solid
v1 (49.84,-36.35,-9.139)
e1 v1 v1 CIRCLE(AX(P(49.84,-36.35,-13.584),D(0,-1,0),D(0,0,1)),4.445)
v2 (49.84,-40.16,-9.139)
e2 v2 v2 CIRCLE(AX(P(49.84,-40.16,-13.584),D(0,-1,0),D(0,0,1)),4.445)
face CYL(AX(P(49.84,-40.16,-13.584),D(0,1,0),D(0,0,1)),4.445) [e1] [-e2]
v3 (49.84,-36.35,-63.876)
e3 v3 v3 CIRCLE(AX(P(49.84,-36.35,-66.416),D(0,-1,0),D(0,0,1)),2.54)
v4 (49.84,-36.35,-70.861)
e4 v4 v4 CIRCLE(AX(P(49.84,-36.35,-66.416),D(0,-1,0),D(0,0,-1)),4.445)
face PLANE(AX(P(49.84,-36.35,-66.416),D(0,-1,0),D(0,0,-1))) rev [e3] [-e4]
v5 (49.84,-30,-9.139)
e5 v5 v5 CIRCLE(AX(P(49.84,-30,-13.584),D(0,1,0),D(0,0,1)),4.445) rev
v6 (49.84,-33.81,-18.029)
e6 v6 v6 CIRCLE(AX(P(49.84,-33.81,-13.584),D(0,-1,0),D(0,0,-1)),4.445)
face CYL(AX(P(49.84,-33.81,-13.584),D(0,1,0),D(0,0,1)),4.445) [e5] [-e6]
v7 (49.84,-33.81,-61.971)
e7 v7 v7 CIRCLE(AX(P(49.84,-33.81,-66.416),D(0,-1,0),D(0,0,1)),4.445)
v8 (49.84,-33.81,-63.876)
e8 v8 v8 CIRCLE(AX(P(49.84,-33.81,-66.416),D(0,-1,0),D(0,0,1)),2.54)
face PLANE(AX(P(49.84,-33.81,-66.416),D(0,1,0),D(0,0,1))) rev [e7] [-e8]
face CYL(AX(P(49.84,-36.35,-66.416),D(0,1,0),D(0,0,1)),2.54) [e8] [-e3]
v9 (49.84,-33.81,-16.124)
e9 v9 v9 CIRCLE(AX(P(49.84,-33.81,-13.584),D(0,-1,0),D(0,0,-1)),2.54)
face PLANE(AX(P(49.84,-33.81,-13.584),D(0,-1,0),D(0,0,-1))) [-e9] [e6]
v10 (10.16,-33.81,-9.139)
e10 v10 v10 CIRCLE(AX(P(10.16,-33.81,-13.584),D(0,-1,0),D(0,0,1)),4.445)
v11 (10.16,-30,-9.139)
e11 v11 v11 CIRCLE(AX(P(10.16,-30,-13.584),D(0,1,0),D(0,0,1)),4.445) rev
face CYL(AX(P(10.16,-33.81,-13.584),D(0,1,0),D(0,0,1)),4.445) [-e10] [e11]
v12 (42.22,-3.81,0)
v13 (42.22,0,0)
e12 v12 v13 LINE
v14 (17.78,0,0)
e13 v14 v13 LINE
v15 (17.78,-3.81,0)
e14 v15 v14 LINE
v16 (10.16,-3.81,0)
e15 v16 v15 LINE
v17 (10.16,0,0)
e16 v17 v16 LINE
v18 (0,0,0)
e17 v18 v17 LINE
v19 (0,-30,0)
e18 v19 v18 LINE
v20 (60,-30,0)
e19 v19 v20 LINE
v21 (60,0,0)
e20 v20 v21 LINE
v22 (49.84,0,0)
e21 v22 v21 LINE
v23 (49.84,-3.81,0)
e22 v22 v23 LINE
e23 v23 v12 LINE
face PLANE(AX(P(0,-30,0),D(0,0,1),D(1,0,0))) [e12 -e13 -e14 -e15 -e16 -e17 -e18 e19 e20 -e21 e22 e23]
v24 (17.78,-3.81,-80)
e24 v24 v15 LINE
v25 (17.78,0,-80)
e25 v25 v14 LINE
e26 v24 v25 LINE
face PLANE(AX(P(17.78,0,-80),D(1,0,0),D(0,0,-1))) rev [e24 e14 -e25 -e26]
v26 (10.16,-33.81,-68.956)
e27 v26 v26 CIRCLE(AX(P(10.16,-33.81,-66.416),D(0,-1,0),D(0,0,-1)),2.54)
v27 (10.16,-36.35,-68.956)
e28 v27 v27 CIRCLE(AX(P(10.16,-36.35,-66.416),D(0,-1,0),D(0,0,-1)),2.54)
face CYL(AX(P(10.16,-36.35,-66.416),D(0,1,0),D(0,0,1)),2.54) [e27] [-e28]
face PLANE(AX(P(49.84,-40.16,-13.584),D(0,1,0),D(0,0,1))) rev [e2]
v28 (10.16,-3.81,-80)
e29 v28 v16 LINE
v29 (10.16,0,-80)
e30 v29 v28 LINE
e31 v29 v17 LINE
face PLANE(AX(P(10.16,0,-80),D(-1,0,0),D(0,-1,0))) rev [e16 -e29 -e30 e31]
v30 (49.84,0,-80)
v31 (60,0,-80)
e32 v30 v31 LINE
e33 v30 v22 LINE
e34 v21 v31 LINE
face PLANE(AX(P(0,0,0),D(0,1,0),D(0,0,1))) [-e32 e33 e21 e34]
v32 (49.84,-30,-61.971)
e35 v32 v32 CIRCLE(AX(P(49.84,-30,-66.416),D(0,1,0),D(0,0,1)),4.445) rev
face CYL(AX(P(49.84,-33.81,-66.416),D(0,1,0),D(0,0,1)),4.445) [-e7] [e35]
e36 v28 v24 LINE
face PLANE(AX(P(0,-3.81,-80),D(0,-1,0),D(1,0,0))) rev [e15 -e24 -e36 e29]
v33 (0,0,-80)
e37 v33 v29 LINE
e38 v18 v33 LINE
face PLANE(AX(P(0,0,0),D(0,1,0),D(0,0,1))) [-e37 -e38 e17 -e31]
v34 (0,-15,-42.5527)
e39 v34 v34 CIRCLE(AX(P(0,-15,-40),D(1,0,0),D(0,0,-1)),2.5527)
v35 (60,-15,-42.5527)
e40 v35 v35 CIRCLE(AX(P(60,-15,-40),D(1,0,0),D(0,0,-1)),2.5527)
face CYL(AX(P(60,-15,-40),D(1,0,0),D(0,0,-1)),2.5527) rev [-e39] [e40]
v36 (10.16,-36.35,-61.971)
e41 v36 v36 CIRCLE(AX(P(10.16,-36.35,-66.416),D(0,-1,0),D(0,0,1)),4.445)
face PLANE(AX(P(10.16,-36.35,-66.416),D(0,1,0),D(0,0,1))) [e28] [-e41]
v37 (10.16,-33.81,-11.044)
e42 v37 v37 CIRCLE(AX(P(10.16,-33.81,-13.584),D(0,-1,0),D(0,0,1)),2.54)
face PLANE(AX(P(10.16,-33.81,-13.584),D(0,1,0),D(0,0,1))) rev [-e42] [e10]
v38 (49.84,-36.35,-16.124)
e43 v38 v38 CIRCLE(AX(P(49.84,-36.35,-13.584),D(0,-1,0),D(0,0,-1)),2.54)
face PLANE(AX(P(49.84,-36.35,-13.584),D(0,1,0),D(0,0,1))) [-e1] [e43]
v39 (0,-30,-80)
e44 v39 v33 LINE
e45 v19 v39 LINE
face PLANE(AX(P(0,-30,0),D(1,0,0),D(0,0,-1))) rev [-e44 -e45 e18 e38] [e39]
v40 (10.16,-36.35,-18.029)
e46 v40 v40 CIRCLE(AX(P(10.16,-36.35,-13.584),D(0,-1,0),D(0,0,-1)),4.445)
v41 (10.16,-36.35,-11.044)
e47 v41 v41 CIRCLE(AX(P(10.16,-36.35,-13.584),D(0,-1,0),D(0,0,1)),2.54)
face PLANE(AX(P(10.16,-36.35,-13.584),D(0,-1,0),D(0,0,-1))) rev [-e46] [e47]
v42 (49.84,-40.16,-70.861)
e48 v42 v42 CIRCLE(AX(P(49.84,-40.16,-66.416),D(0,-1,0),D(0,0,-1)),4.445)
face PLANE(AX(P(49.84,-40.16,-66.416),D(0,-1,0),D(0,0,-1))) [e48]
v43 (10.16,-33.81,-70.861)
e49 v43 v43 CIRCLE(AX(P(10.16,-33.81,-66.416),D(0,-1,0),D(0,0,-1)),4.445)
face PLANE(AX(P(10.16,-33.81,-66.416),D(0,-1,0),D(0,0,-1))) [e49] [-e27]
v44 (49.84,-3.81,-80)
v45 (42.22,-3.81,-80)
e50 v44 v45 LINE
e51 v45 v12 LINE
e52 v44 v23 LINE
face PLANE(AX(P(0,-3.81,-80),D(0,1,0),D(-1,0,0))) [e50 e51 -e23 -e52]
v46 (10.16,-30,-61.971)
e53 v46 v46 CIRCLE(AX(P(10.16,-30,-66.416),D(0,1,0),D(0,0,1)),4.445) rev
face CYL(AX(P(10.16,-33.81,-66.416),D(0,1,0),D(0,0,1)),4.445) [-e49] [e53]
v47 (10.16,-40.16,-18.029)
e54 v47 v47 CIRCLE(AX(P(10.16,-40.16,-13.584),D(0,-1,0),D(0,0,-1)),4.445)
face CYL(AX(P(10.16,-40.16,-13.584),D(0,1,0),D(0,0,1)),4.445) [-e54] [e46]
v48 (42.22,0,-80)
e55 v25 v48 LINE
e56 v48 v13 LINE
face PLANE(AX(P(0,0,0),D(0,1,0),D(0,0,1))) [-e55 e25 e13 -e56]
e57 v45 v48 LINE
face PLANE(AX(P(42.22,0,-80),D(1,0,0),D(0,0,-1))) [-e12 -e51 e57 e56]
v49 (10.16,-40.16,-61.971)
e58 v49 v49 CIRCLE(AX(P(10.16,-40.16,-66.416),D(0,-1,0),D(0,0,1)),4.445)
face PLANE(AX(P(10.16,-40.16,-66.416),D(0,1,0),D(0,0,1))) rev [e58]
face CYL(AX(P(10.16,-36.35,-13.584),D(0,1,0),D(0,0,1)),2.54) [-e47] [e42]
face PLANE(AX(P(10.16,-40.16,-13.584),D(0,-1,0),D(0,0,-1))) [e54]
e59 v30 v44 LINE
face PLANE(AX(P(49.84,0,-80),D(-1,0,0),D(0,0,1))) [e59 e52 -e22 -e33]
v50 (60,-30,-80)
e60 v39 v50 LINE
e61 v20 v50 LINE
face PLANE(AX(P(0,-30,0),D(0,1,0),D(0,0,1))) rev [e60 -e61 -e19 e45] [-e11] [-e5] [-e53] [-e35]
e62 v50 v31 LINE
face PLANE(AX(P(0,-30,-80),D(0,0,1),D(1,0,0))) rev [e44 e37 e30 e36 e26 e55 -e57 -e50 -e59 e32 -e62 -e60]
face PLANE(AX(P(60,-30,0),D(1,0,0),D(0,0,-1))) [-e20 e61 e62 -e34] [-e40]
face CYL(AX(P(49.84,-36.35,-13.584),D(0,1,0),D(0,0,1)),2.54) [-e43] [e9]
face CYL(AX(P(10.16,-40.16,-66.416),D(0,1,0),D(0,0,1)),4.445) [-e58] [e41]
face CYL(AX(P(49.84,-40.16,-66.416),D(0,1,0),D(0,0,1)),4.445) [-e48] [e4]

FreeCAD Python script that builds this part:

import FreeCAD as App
import Part
import Sketcher

V = App.Vector
Q = App.Units.Quantity

doc = App.newDocument("Part")
params = doc.addObject("Spreadsheet::Sheet", "Params")
for row, (alias, value) in enumerate([
    ("pad1_length", "30 mm"),
    ("sketch2_width", "0.3 in"),
    ("sketch2_height", "0.15 in"),
    ("sketch3_diameter", "0.35 in"),
    ("pad2_length", "0.15 in"),
    ("sketch4_diameter", "0.2 in"),
    ("pad3_length", "0.1 in"),
    ("sketch5_diameter", "0.35 in"),
    ("pad4_length", "0.15 in"),
    ("sketch6_diameter", "0.201 in"),
    ("hole_diameter", "0.201 in"),
], start=1):
    params.set(f"A{row}", alias)
    params.set(f"B{row}", "=" + value)
    params.setAlias(f"B{row}", alias)

body = doc.addObject("PartDesign::Body", "Body")

sketch1 = body.newObject("Sketcher::SketchObject", "Sketch")
sketch1.AttachmentSupport = (doc.getObject("XZ_Plane"), [""])
sketch1.MapMode = "FlatFace"
sketch1.addGeometry([
    Part.LineSegment(V(0, -80, 0), V(0, 0, 0)),
    Part.LineSegment(V(0, 0, 0), V(60, 0, 0)),
    Part.LineSegment(V(60, 0, 0), V(60, -80, 0)),
    Part.LineSegment(V(60, -80, 0), V(0, -80, 0)),
], False)
sketch1.addConstraint([
    Sketcher.Constraint("Coincident", 0, 2, 1, 1),
    Sketcher.Constraint("Coincident", 1, 2, 2, 1),
    Sketcher.Constraint("Coincident", 2, 2, 3, 1),
    Sketcher.Constraint("Coincident", 3, 2, 0, 1),
    Sketcher.Constraint("Vertical", 0),
    Sketcher.Constraint("Horizontal", 1),
    Sketcher.Constraint("Vertical", 2),
    Sketcher.Constraint("Horizontal", 3),
    Sketcher.Constraint("Coincident", 0, 2, -1, 1),
    Sketcher.Constraint("DistanceX", 1, 1, 1, 2, 60.0),
    Sketcher.Constraint("DistanceY", 0, 1, 0, 2, 80.0),
])
pad1 = body.newObject("PartDesign::Pad", "Pad")
pad1.Profile = sketch1
pad1.setExpression("Length", "Params.pad1_length")

sketch2 = body.newObject("Sketcher::SketchObject", "Sketch001")
sketch2.AttachmentSupport = (doc.getObject("XY_Plane"), [""])
sketch2.MapMode = "FlatFace"
sketch2.addGeometry([
    Part.LineSegment(V(10.16, 0, 0), V(10.16, -3.81, 0)),
    Part.LineSegment(V(10.16, -3.81, 0), V(17.78, -3.81, 0)),
    Part.LineSegment(V(17.78, -3.81, 0), V(17.78, 0, 0)),
    Part.LineSegment(V(17.78, 0, 0), V(10.16, 0, 0)),
    Part.LineSegment(V(49.84, 0, 0), V(42.22, 0, 0)),
    Part.LineSegment(V(42.22, 0, 0), V(42.22, -3.81, 0)),
    Part.LineSegment(V(42.22, -3.81, 0), V(49.84, -3.81, 0)),
    Part.LineSegment(V(49.84, -3.81, 0), V(49.84, 0, 0)),
], False)
sketch2.addConstraint([
    Sketcher.Constraint("Coincident", 0, 2, 1, 1),
    Sketcher.Constraint("Coincident", 1, 2, 2, 1),
    Sketcher.Constraint("Coincident", 2, 2, 3, 1),
    Sketcher.Constraint("Coincident", 3, 2, 0, 1),
    Sketcher.Constraint("Coincident", 4, 2, 5, 1),
    Sketcher.Constraint("Coincident", 5, 2, 6, 1),
    Sketcher.Constraint("Coincident", 6, 2, 7, 1),
    Sketcher.Constraint("Coincident", 7, 2, 4, 1),
    Sketcher.Constraint("Vertical", 0),
    Sketcher.Constraint("Horizontal", 1),
    Sketcher.Constraint("Vertical", 2),
    Sketcher.Constraint("Horizontal", 3),
    Sketcher.Constraint("Horizontal", 4),
    Sketcher.Constraint("Vertical", 5),
    Sketcher.Constraint("Horizontal", 6),
    Sketcher.Constraint("Vertical", 7),
    Sketcher.Constraint("PointOnObject", 2, 2, -1),
    Sketcher.Constraint("PointOnObject", 4, 2, -1),
    Sketcher.Constraint("Horizontal", 1, 2, 5, 2),
    Sketcher.Constraint("Equal", 3, 4),
    Sketcher.Constraint("DistanceX", 1, 1, 1, 2, Q("0.3 in")),
    Sketcher.Constraint("DistanceY", 0, 2, 0, 1, Q("0.15 in")),
    Sketcher.Constraint("DistanceX", -1, 1, 0, 2, Q("0.4 in")),
    Sketcher.Constraint("DistanceX", -1, 1, 4, 2, 42.22),
])
sketch2.setExpression("Constraints[20]", "Params.sketch2_width")
sketch2.setExpression("Constraints[21]", "Params.sketch2_height")
pocket1 = body.newObject("PartDesign::Pocket", "Pocket")
pocket1.Profile = sketch2
pocket1.Type = "ThroughAll"

sketch3 = body.newObject("Sketcher::SketchObject", "Sketch002")
sketch3.AttachmentSupport = (doc.getObject("XZ_Plane"), [""])
sketch3.MapMode = "FlatFace"
sketch3.AttachmentOffset = App.Placement(V(0, 0, 30), App.Rotation())
sketch3.addGeometry([
    Part.Circle(V(49.84, -13.584, 0), V(0, 0, 1), 4.445),
    Part.Circle(V(10.16, -13.584, 0), V(0, 0, 1), 4.445),
    Part.Circle(V(49.84, -66.416, 0), V(0, 0, 1), 4.445),
    Part.Circle(V(10.16, -66.416, 0), V(0, 0, 1), 4.445),
], False)
sketch3.addConstraint([
    Sketcher.Constraint("Equal", 0, 1),
    Sketcher.Constraint("Equal", 1, 2),
    Sketcher.Constraint("Equal", 2, 3),
    Sketcher.Constraint("Horizontal", 0, 3, 1, 3),
    Sketcher.Constraint("Horizontal", 2, 3, 3, 3),
    Sketcher.Constraint("Vertical", 0, 3, 2, 3),
    Sketcher.Constraint("Vertical", 1, 3, 3, 3),
    Sketcher.Constraint("Diameter", 0, Q("0.35 in")),
    Sketcher.Constraint("DistanceX", -1, 1, 1, 3, Q("0.4 in")),
    Sketcher.Constraint("DistanceY", 2, 3, 0, 3, Q("2.08 in")),
    Sketcher.Constraint("DistanceX", -1, 1, 0, 3, 49.84),
    Sketcher.Constraint("DistanceY", 0, 3, -1, 1, 13.584),
])
sketch3.setExpression("Constraints[7]", "Params.sketch3_diameter")
pad2 = body.newObject("PartDesign::Pad", "Pad001")
pad2.Profile = sketch3
pad2.setExpression("Length", "Params.pad2_length")

sketch4 = body.newObject("Sketcher::SketchObject", "Sketch003")
sketch4.AttachmentSupport = (doc.getObject("XZ_Plane"), [""])
sketch4.MapMode = "FlatFace"
sketch4.AttachmentOffset = App.Placement(V(0, 0, 33.81), App.Rotation())
sketch4.addGeometry([
    Part.Circle(V(49.84, -13.584, 0), V(0, 0, 1), 2.54),
    Part.Circle(V(10.16, -13.584, 0), V(0, 0, 1), 2.54),
    Part.Circle(V(10.16, -66.416, 0), V(0, 0, 1), 2.54),
    Part.Circle(V(49.84, -66.416, 0), V(0, 0, 1), 2.54),
], False)
sketch4.addConstraint([
    Sketcher.Constraint("Equal", 0, 1),
    Sketcher.Constraint("Equal", 1, 2),
    Sketcher.Constraint("Equal", 2, 3),
    Sketcher.Constraint("Horizontal", 0, 3, 1, 3),
    Sketcher.Constraint("Horizontal", 2, 3, 3, 3),
    Sketcher.Constraint("Vertical", 1, 3, 2, 3),
    Sketcher.Constraint("Vertical", 0, 3, 3, 3),
    Sketcher.Constraint("Diameter", 0, Q("0.2 in")),
    Sketcher.Constraint("DistanceX", -1, 1, 1, 3, Q("0.4 in")),
    Sketcher.Constraint("DistanceY", 2, 3, 1, 3, Q("2.08 in")),
    Sketcher.Constraint("DistanceX", -1, 1, 0, 3, 49.84),
    Sketcher.Constraint("DistanceY", 0, 3, -1, 1, 13.584),
])
sketch4.setExpression("Constraints[7]", "Params.sketch4_diameter")
pad3 = body.newObject("PartDesign::Pad", "Pad002")
pad3.Profile = sketch4
pad3.setExpression("Length", "Params.pad3_length")

sketch5 = body.newObject("Sketcher::SketchObject", "Sketch004")
sketch5.AttachmentSupport = (doc.getObject("XZ_Plane"), [""])
sketch5.MapMode = "FlatFace"
sketch5.AttachmentOffset = App.Placement(V(0, 0, 36.35), App.Rotation())
sketch5.addGeometry([
    Part.Circle(V(10.16, -13.584, 0), V(0, 0, 1), 4.445),
    Part.Circle(V(10.16, -66.416, 0), V(0, 0, 1), 4.445),
    Part.Circle(V(49.84, -66.416, 0), V(0, 0, 1), 4.445),
    Part.Circle(V(49.84, -13.584, 0), V(0, 0, 1), 4.445),
], False)
sketch5.addConstraint([
    Sketcher.Constraint("Equal", 0, 1),
    Sketcher.Constraint("Equal", 1, 2),
    Sketcher.Constraint("Equal", 2, 3),
    Sketcher.Constraint("Horizontal", 1, 3, 2, 3),
    Sketcher.Constraint("Horizontal", 0, 3, 3, 3),
    Sketcher.Constraint("Vertical", 0, 3, 1, 3),
    Sketcher.Constraint("Vertical", 2, 3, 3, 3),
    Sketcher.Constraint("Diameter", 0, Q("0.35 in")),
    Sketcher.Constraint("DistanceX", -1, 1, 0, 3, Q("0.4 in")),
    Sketcher.Constraint("DistanceY", 1, 3, 0, 3, Q("2.08 in")),
    Sketcher.Constraint("DistanceY", 0, 3, -1, 1, 13.584),
    Sketcher.Constraint("DistanceX", -1, 1, 2, 3, 49.84),
])
sketch5.setExpression("Constraints[7]", "Params.sketch5_diameter")
pad4 = body.newObject("PartDesign::Pad", "Pad003")
pad4.Profile = sketch5
pad4.setExpression("Length", "Params.pad4_length")

sketch6 = body.newObject("Sketcher::SketchObject", "Sketch005")
sketch6.AttachmentSupport = (doc.getObject("YZ_Plane"), [""])
sketch6.MapMode = "FlatFace"
sketch6.AttachmentOffset = App.Placement(V(0, 0, 60), App.Rotation())
sketch6.addGeometry(Part.Circle(V(-15, -40, 0), V(0, 0, 1), 2.5527), False)
sketch6.addConstraint([
    Sketcher.Constraint("Diameter", 0, Q("0.201 in")),
    Sketcher.Constraint("DistanceX", 0, 3, -1, 1, 15.0),
    Sketcher.Constraint("DistanceY", 0, 3, -1, 1, 40.0),
])
sketch6.setExpression("Constraints[0]", "Params.sketch6_diameter")
doc.recompute()
hole = body.newObject("PartDesign::Hole", "Hole")
hole.Profile = sketch6
hole.ThreadType = "None"
hole.setExpression("Diameter", "Params.hole_diameter")
hole.DepthType = "ThroughAll"

doc.recompute()
